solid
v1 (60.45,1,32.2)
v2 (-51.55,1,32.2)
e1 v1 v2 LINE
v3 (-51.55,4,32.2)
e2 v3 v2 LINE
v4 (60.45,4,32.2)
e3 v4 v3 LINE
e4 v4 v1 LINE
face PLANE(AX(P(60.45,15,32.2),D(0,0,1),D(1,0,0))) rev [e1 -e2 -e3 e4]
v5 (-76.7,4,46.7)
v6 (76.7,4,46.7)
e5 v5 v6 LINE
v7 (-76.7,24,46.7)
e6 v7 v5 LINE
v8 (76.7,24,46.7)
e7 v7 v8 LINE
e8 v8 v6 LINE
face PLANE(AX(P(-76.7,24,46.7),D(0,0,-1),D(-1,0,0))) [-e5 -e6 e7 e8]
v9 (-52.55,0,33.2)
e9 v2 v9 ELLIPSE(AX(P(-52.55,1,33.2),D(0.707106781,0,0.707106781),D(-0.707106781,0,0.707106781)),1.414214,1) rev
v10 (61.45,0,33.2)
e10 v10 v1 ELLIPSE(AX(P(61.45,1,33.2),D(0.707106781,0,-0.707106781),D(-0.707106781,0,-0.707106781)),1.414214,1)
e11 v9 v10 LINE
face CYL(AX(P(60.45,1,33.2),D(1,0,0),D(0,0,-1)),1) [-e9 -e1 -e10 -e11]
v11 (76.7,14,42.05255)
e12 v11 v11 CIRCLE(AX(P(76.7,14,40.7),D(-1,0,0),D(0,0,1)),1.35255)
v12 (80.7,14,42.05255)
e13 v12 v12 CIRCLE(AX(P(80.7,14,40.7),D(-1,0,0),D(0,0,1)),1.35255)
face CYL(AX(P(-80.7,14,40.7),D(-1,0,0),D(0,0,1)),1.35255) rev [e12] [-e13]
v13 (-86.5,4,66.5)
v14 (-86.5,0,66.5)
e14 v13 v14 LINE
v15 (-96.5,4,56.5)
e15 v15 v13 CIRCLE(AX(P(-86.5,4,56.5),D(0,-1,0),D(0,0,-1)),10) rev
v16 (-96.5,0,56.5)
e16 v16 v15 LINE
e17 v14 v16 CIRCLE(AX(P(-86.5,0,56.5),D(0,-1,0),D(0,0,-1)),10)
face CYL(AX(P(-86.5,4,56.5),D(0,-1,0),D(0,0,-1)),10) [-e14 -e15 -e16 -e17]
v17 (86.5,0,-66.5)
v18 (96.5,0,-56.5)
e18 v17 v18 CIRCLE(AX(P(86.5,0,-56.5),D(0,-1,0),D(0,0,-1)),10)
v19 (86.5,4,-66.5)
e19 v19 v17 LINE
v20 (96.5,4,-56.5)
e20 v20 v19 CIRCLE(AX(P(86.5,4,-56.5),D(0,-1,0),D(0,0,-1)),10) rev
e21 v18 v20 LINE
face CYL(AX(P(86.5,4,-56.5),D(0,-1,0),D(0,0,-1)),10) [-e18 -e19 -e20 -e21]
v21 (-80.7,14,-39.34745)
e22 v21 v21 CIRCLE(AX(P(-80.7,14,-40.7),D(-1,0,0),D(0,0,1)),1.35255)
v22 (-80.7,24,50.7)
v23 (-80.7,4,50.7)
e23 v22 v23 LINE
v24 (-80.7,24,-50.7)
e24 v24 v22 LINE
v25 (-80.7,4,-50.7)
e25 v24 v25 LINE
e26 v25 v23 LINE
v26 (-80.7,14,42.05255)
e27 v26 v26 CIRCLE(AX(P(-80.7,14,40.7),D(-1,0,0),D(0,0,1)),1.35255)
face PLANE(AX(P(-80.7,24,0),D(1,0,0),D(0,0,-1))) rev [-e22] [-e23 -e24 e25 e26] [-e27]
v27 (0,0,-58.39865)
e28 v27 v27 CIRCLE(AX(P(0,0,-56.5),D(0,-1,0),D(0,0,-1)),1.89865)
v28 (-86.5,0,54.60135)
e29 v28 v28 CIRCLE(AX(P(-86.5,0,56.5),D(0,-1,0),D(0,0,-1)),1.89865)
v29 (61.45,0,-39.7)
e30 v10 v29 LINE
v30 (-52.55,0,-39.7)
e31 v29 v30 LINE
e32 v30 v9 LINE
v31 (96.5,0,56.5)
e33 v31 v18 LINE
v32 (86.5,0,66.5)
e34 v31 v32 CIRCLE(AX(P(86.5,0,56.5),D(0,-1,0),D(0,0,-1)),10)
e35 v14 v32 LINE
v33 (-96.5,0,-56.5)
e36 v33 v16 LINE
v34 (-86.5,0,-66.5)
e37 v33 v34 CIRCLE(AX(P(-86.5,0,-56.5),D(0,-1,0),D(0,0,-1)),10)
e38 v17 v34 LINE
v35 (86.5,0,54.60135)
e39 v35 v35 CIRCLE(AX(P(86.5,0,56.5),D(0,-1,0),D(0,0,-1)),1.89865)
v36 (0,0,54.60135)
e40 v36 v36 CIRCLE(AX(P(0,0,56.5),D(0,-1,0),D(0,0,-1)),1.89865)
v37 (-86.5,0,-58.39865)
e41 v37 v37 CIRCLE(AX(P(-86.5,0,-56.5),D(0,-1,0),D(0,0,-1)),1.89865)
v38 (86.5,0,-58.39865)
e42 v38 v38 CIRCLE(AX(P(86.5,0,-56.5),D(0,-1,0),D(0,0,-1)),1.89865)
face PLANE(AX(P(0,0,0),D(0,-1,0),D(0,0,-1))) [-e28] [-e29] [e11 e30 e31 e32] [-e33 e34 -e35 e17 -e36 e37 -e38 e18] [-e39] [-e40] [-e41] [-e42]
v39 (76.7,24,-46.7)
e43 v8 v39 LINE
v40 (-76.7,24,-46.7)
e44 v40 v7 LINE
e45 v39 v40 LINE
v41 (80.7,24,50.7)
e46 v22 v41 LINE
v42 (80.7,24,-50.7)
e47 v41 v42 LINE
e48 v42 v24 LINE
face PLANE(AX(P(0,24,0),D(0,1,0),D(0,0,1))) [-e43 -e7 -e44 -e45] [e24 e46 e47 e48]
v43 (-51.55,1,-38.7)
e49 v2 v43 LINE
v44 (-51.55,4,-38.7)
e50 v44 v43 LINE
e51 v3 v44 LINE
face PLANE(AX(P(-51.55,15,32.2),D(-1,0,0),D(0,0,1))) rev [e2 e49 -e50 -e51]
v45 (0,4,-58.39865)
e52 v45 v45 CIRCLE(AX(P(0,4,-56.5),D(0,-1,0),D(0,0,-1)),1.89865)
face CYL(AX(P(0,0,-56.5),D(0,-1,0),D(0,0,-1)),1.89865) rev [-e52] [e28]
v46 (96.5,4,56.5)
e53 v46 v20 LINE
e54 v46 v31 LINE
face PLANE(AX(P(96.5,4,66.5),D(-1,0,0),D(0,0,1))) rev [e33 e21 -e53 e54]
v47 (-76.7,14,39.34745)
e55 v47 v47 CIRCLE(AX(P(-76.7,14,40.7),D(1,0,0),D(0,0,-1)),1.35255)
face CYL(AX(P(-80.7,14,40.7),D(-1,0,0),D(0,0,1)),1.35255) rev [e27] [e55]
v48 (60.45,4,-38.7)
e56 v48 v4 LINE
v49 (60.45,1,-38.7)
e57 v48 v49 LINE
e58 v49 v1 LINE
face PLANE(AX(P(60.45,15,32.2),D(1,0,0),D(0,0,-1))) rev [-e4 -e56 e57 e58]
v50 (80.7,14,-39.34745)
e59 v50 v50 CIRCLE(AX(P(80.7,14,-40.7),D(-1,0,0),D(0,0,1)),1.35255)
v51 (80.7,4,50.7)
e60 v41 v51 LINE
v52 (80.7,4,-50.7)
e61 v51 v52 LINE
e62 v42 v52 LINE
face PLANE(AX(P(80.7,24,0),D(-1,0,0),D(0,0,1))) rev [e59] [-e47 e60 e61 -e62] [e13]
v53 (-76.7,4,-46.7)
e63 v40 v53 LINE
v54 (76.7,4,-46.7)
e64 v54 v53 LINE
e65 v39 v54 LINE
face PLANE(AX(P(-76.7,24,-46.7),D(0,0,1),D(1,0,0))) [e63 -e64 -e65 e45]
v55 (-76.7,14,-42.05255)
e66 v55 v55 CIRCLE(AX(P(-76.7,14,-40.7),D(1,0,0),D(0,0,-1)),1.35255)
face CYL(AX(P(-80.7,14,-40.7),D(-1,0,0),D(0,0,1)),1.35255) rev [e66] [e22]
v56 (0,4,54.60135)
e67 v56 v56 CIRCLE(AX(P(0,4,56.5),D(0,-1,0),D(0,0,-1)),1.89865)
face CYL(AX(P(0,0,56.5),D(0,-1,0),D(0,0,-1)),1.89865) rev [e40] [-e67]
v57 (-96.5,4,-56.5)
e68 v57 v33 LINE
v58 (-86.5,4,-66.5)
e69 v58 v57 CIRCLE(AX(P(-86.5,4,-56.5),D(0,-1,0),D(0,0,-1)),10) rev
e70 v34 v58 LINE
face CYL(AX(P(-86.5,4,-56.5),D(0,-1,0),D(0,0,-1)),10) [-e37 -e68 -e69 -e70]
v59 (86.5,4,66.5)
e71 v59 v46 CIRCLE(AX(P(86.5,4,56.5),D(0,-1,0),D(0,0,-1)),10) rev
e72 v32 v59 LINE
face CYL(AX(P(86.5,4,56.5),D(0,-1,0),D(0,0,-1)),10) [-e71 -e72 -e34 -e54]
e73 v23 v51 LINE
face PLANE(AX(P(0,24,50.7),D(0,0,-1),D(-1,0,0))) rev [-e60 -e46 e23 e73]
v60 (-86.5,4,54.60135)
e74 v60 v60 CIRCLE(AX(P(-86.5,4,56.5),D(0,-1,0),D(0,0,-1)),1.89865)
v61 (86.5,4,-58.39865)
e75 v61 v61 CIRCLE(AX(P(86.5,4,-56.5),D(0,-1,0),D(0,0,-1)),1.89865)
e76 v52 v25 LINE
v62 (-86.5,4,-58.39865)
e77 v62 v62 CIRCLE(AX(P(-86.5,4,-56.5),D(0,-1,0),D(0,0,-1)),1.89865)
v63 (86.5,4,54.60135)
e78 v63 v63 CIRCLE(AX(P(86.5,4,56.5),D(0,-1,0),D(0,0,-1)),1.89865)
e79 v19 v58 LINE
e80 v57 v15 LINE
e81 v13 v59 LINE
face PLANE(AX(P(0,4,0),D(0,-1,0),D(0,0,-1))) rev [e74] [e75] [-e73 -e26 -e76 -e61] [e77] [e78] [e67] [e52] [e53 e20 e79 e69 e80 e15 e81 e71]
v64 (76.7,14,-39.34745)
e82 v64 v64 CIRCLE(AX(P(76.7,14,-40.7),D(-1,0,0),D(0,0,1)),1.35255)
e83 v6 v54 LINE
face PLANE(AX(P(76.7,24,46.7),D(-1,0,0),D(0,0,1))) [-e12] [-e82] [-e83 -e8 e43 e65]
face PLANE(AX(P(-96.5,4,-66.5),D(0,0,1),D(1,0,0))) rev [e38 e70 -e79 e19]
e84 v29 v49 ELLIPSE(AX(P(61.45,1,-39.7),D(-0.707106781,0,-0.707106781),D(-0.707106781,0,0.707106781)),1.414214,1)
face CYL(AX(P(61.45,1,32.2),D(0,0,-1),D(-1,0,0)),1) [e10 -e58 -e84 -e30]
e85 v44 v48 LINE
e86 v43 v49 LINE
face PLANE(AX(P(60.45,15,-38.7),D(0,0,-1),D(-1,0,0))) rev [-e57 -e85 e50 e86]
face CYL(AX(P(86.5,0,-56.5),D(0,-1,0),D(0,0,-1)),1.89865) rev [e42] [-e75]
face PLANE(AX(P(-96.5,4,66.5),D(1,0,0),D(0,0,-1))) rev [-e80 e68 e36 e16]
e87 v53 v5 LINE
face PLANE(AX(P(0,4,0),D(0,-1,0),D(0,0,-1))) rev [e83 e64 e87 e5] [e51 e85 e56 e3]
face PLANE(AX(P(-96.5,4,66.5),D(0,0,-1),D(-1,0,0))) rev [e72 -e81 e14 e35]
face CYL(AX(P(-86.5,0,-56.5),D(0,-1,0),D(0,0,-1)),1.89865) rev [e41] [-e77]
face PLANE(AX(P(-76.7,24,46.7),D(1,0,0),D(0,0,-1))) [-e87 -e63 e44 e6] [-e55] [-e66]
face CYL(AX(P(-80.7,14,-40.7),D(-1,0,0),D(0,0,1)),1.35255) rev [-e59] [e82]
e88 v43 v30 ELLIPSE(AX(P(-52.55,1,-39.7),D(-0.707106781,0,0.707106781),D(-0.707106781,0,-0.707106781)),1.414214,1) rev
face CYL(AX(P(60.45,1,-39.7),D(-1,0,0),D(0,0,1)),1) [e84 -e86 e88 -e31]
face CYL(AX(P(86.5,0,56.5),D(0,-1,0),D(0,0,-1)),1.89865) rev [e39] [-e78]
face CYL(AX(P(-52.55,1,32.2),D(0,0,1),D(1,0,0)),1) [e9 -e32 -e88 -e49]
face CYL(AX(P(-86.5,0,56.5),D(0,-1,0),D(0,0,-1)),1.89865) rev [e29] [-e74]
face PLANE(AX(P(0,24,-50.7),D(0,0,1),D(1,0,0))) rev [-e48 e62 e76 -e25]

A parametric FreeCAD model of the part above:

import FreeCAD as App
import Part
import Sketcher

V = App.Vector
Q = App.Units.Quantity


def edges_at(feature, points):
    """Names of the edges that pass closest to the given points."""
    edges = feature.Shape.Edges
    near = lambda p: min(range(len(edges)), key=lambda i: edges[i].distToShape(Part.Vertex(*p))[0])
    return sorted({f"Edge{near(p) + 1}" for p in points})

doc = App.newDocument("Part")
body = doc.addObject("PartDesign::Body", "Body")

sketch1 = body.newObject("Sketcher::SketchObject", "Sketch")
sketch1.AttachmentSupport = (doc.getObject("XZ_Plane"), [""])
sketch1.MapMode = "FlatFace"
sketch1.addGeometry([
    Part.LineSegment(V(-96, -66, 0), V(-96, 66, 0)),
    Part.LineSegment(V(-96, 66, 0), V(96, 66, 0)),
    Part.LineSegment(V(96, 66, 0), V(96, -66, 0)),
    Part.LineSegment(V(96, -66, 0), V(-96, -66, 0)),
], False)
sketch1.addConstraint([
    Sketcher.Constraint("Coincident", 0, 2, 1, 1),
    Sketcher.Constraint("Coincident", 1, 2, 2, 1),
    Sketcher.Constraint("Coincident", 2, 2, 3, 1),
    Sketcher.Constraint("Coincident", 3, 2, 0, 1),
    Sketcher.Constraint("Vertical", 0),
    Sketcher.Constraint("Horizontal", 1),
    Sketcher.Constraint("Vertical", 2),
    Sketcher.Constraint("Horizontal", 3),
    Sketcher.Constraint("Symmetric", 0, 2, 2, 2, -1, 1),
    Sketcher.Constraint("DistanceX", 1, 1, 1, 2, Q("193 mm")),
    Sketcher.Constraint("DistanceY", 0, 1, 0, 2, Q("133 mm")),
])
pad1 = body.newObject("PartDesign::Pad", "Pad")
pad1.Profile = sketch1
pad1.Length = 4
pad1.Reversed = True

sketch2 = body.newObject("Sketcher::SketchObject", "Sketch001")
sketch2.AttachmentSupport = (doc.getObject("XZ_Plane"), [""])
sketch2.MapMode = "FlatFace"
sketch2.AttachmentOffset = App.Placement(V(0, 0, -4), App.Rotation())
sketch2.addGeometry([
    Part.LineSegment(V(-81, -51, 0), V(-81, 51, 0)),
    Part.LineSegment(V(-81, 51, 0), V(81, 51, 0)),
    Part.LineSegment(V(81, 51, 0), V(81, -51, 0)),
    Part.LineSegment(V(81, -51, 0), V(-81, -51, 0)),
    Part.LineSegment(V(77, 47, 0), V(-77, 47, 0)),
    Part.LineSegment(V(-77, 47, 0), V(-77, -47, 0)),
    Part.LineSegment(V(-77, -47, 0), V(77, -47, 0)),
    Part.LineSegment(V(77, -47, 0), V(77, 47, 0)),
], False)
sketch2.addConstraint([
    Sketcher.Constraint("Coincident", 0, 2, 1, 1),
    Sketcher.Constraint("Coincident", 1, 2, 2, 1),
    Sketcher.Constraint("Coincident", 2, 2, 3, 1),
    Sketcher.Constraint("Coincident", 3, 2, 0, 1),
    Sketcher.Constraint("Coincident", 4, 2, 5, 1),
    Sketcher.Constraint("Coincident", 5, 2, 6, 1),
    Sketcher.Constraint("Coincident", 6, 2, 7, 1),
    Sketcher.Constraint("Coincident", 7, 2, 4, 1),
    Sketcher.Constraint("Vertical", 0),
    Sketcher.Constraint("Horizontal", 1),
    Sketcher.Constraint("Vertical", 2),
    Sketcher.Constraint("Horizontal", 3),
    Sketcher.Constraint("Horizontal", 4),
    Sketcher.Constraint("Vertical", 5),
    Sketcher.Constraint("Horizontal", 6),
    Sketcher.Constraint("Vertical", 7),
    Sketcher.Constraint("Symmetric", 0, 2, 2, 2, -1, 1),
    Sketcher.Constraint("Symmetric", 4, 2, 6, 2, -1, 1),
    Sketcher.Constraint("DistanceX", 1, 1, 1, 2, Q("161.4 mm")),
    Sketcher.Constraint("DistanceX", 4, 2, 4, 1, Q("153.4 mm")),
    Sketcher.Constraint("DistanceY", 0, 1, 0, 2, Q("101.4 mm")),
    Sketcher.Constraint("DistanceY", 5, 2, 5, 1, Q("93.4 mm")),
])
pad2 = body.newObject("PartDesign::Pad", "Pad001")
pad2.Profile = sketch2
pad2.Length = 20
pad2.Reversed = True

sketch3 = body.newObject("Sketcher::SketchObject", "Sketch002")
sketch3.AttachmentSupport = (doc.getObject("XZ_Plane"), [""])
sketch3.MapMode = "FlatFace"
sketch3.addGeometry([
    Part.LineSegment(V(-52, 32, 0), V(-52, -39, 0)),
    Part.LineSegment(V(-52, -39, 0), V(60, -39, 0)),
    Part.LineSegment(V(60, -39, 0), V(60, 32, 0)),
    Part.LineSegment(V(60, 32, 0), V(-52, 32, 0)),
], False)
sketch3.addConstraint([
    Sketcher.Constraint("Coincident", 0, 2, 1, 1),
    Sketcher.Constraint("Coincident", 1, 2, 2, 1),
    Sketcher.Constraint("Coincident", 2, 2, 3, 1),
    Sketcher.Constraint("Coincident", 3, 2, 0, 1),
    Sketcher.Constraint("Vertical", 0),
    Sketcher.Constraint("Horizontal", 1),
    Sketcher.Constraint("Vertical", 2),
    Sketcher.Constraint("Horizontal", 3),
    Sketcher.Constraint("DistanceX", 1, 1, 1, 2, Q("112 mm")),
    Sketcher.Constraint("DistanceY", 0, 2, 0, 1, Q("70.9 mm")),
    Sketcher.Constraint("DistanceY", 0, 2, -1, 1, Q("38.7 mm")),
    Sketcher.Constraint("DistanceX", 0, 2, -1, 1, Q("51.55 mm")),
])
pocket1 = body.newObject("PartDesign::Pocket", "Pocket")
pocket1.Profile = sketch3
pocket1.Length = 15
doc.recompute()

fillet = body.newObject("PartDesign::Fillet", "Fillet")
fillet.Base = (pocket1, edges_at(pocket1, [
    (60.45, 0, -3.25),
    (4.45, 0, 32.2),
    (-51.55, 0, -3.25),
    (4.45, 0, -38.7),
]))
fillet.Radius = 1

sketch4 = body.newObject("Sketcher::SketchObject", "Sketch003")
sketch4.AttachmentSupport = (doc.getObject("XZ_Plane"), [""])
sketch4.MapMode = "FlatFace"
sketch4.addGeometry([
    Part.Circle(V(-86.5, 56.5, 0), V(0, 0, 1), 1.9),
    Part.Circle(V(-86.5, -56.5, 0), V(0, 0, 1), 1.9),
    Part.Circle(V(86.5, -56.5, 0), V(0, 0, 1), 1.9),
    Part.Circle(V(86.5, 56.5, 0), V(0, 0, 1), 1.9),
    Part.Circle(V(0, 56.5, 0), V(0, 0, 1), 1.9),
    Part.Circle(V(0, -56.5, 0), V(0, 0, 1), 1.9),
], False)
sketch4.addConstraint([
    Sketcher.Constraint("Equal", 0, 1),
    Sketcher.Constraint("Equal", 1, 2),
    Sketcher.Constraint("Equal", 2, 3),
    Sketcher.Constraint("Equal", 3, 4),
    Sketcher.Constraint("Equal", 4, 5),
    Sketcher.Constraint("Symmetric", 0, 3, 2, 3, -1, 1),
    Sketcher.Constraint("Symmetric", 1, 3, 3, 3, -1, 1),
    Sketcher.Constraint("Symmetric", 4, 3, 5, 3, -1, 1),
    Sketcher.Constraint("Symmetric", 1, 3, 2, 3, -2),
    Sketcher.Constraint("PointOnObject", 4, 3, -2),
    Sketcher.Constraint("Horizontal", 3, 3, 4, 3),
    Sketcher.Constraint("DistanceY", 1, 3, 0, 3, Q("113 mm")),
    Sketcher.Constraint("DistanceX", 1, 3, 2, 3, Q("173 mm")),
    Sketcher.Constraint("Diameter", 0, Q("3.7973 mm")),
])
doc.recompute()
hole = body.newObject("PartDesign::Hole", "Hole")
hole.Profile = sketch4
hole.ThreadType = "None"
hole.Diameter = 3.7973
hole.DepthType = "ThroughAll"
doc.recompute()

fillet2 = body.newObject("PartDesign::Fillet", "Fillet001")
fillet2.Base = (hole, edges_at(hole, [
    (96.5, 2, 66.5),
    (-96.5, 2, 66.5),
    (-96.5, 2, -66.5),
    (96.5, 2, -66.5),
]))
fillet2.Radius = 10

sketch5 = body.newObject("Sketcher::SketchObject", "Sketch004")
sketch5.AttachmentSupport = (doc.getObject("YZ_Plane"), [""])
sketch5.MapMode = "FlatFace"
sketch5.AttachmentOffset = App.Placement(V(0, 0, -80.7), App.Rotation())
sketch5.addGeometry([
    Part.Circle(V(14, -40.7, 0), V(0, 0, 1), 1.4),
    Part.Circle(V(14, 40.7, 0), V(0, 0, 1), 1.4),
], False)
sketch5.addConstraint([
    Sketcher.Constraint("Equal", 0, 1),
    Sketcher.Constraint("Symmetric", 0, 3, 1, 3, -1),
    Sketcher.Constraint("DistanceX", -1, 1, 0, 3, Q("14 mm")),
    Sketcher.Constraint("Diameter", 0, Q("2.7051 mm")),
    Sketcher.Constraint("DistanceY", 0, 3, -1, 1, Q("40.7 mm")),
])
doc.recompute()
hole2 = body.newObject("PartDesign::Hole", "Hole001")
hole2.Profile = sketch5
hole2.ThreadType = "None"
hole2.Diameter = 2.7051
hole2.DepthType = "ThroughAll"
hole2.Reversed = True

doc.recompute()
